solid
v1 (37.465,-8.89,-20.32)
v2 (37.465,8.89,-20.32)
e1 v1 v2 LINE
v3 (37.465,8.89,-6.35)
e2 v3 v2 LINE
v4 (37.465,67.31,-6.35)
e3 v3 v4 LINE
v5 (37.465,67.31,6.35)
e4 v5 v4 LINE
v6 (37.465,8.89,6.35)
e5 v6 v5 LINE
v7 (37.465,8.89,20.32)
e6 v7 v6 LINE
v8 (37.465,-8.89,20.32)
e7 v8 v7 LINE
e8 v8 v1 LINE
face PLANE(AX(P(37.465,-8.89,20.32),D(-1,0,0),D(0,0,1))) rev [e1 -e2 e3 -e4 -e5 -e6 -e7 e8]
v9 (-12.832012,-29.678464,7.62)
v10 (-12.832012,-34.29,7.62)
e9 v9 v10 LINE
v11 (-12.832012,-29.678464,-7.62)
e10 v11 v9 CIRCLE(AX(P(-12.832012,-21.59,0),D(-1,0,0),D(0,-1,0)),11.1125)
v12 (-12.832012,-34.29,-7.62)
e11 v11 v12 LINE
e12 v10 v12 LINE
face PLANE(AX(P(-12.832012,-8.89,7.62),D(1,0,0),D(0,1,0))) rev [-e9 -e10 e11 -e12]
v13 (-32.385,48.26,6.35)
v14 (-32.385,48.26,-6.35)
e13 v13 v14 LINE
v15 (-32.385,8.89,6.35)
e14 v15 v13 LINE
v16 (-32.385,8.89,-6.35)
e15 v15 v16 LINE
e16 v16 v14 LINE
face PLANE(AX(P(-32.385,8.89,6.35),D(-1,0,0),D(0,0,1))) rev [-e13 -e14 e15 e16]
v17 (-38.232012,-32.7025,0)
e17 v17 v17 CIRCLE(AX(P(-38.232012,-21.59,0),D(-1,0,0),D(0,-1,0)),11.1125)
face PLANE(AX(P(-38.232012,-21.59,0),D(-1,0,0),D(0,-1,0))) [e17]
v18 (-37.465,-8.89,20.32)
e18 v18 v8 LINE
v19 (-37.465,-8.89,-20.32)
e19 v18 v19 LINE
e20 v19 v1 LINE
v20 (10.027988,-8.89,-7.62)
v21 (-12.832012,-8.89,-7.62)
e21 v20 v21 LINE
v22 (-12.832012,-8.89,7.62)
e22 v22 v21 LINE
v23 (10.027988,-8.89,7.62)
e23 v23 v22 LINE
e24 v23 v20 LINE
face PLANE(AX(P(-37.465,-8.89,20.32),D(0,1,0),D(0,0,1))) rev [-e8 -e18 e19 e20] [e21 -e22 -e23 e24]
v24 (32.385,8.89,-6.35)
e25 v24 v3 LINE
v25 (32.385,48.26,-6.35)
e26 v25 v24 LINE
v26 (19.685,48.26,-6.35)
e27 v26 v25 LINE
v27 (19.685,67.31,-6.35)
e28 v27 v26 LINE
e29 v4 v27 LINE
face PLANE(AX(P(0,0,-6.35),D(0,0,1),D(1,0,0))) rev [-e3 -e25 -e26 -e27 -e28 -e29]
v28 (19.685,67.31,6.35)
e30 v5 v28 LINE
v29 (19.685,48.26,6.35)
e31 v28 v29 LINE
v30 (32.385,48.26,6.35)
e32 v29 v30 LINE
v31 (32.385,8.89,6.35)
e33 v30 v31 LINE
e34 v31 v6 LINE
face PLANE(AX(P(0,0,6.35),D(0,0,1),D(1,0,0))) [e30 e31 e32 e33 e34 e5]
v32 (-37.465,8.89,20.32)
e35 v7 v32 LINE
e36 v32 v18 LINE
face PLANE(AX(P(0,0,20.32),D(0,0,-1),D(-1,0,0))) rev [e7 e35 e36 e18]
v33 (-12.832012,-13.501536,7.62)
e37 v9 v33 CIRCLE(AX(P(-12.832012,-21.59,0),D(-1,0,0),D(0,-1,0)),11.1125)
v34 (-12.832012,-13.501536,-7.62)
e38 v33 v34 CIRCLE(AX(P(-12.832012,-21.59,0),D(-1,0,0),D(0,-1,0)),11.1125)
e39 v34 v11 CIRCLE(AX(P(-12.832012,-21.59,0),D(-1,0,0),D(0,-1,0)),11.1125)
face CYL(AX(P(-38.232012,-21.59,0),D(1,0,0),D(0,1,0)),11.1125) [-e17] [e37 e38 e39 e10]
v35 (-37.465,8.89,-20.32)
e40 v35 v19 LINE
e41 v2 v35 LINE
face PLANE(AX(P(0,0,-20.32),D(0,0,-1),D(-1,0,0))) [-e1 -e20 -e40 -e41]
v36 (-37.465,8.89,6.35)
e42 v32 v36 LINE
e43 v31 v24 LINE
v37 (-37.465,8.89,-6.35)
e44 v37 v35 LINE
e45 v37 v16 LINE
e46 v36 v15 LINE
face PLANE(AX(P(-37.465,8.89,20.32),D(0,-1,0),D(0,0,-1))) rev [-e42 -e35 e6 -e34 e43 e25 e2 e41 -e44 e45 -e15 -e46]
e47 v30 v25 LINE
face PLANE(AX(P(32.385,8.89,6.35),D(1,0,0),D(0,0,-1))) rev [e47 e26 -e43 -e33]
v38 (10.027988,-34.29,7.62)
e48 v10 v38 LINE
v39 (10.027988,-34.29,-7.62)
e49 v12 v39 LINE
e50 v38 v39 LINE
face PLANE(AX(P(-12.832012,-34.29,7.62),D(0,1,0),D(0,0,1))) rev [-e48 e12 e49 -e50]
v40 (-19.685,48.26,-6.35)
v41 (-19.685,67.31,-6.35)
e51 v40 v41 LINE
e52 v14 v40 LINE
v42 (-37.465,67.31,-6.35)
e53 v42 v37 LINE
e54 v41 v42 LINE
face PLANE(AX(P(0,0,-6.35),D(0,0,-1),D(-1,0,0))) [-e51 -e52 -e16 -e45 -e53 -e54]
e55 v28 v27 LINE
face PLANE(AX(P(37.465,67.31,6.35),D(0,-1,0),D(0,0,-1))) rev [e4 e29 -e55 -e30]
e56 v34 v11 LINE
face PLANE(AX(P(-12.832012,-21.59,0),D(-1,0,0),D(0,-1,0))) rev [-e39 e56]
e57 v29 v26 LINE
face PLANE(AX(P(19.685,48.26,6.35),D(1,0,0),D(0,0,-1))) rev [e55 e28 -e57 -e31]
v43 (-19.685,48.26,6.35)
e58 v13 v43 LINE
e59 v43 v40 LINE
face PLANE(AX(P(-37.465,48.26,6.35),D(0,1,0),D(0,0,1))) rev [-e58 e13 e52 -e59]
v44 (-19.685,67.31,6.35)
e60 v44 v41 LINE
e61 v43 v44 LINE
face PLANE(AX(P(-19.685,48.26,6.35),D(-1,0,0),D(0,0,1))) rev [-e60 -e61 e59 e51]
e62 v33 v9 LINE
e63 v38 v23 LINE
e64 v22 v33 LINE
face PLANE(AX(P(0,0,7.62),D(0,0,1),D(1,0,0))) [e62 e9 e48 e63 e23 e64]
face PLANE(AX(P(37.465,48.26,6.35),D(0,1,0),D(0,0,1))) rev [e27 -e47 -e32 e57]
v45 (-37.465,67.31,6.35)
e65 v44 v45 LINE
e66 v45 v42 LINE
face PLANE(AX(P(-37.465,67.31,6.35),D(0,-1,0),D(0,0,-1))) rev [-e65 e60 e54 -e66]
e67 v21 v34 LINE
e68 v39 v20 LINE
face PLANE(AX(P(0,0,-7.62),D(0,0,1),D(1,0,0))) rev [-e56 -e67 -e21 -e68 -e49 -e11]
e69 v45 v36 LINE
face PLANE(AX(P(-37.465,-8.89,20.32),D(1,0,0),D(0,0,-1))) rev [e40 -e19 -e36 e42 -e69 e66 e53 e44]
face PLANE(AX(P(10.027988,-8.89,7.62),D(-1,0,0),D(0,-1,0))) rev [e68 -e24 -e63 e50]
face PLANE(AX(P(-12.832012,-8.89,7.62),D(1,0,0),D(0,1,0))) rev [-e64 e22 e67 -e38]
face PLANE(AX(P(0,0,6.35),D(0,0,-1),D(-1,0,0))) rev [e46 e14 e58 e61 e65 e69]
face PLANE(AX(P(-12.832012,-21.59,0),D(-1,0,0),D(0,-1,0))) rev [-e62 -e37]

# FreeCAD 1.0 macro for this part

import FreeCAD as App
import Part
import Sketcher
from FreeCAD import Vector
Q = App.Units.Quantity


def add_polygon(sketch, points):
    """Adds a closed chain of lines whose ends are joined by coincident constraints."""
    first, n = sketch.GeometryCount, len(points)
    for a, b in zip(points, points[1:] + points[:1]):
        sketch.addGeometry(Part.LineSegment(App.Vector(*a, 0), App.Vector(*b, 0)), False)
    for i in range(n):
        sketch.addConstraint(Sketcher.Constraint("Coincident", first + i, 2, first + (i + 1) % n, 1))

doc = App.newDocument("Part")
body = doc.addObject("PartDesign::Body", "Body")

# Sketch on XY plane
sketch1 = body.newObject("Sketcher::SketchObject", "Sketch")
sketch1.AttachmentSupport = (doc.getObject("XY_Plane"), [""])
sketch1.MapMode = "FlatFace"
add_polygon(sketch1, [(-37, 9), (-37, -9), (37, -9), (37, 9)])  # lines 0-3
sketch1.addConstraint([
    Sketcher.Constraint("Vertical", 0),
    Sketcher.Constraint("Horizontal", 1),
    Sketcher.Constraint("Vertical", 2),
    Sketcher.Constraint("Horizontal", 3),
    Sketcher.Constraint("Symmetric", 0, 2, 2, 2, -1, 1),
    Sketcher.Constraint("DistanceY", 0, 2, 0, 1, Q("0.7 in")),
    Sketcher.Constraint("DistanceX", 1, 1, 1, 2, Q("2.95 in")),
])
pad1 = body.newObject("PartDesign::Pad", "Pad")
pad1.Profile = sketch1
pad1.Length = Q("1.6 in")
pad1.Midplane = True

# Sketch on XY plane
sketch2 = body.newObject("Sketcher::SketchObject", "Sketch001")
sketch2.AttachmentSupport = (doc.getObject("XY_Plane"), [""])
sketch2.MapMode = "FlatFace"
add_polygon(sketch2, [(-37, 48), (-37, 9), (-32, 9), (-32, 48)])  # lines 0-3
add_polygon(sketch2, [(32, 48), (32, 9), (37, 9), (37, 48)])  # lines 4-7
sketch2.addConstraint([
    Sketcher.Constraint("Vertical", 0),
    Sketcher.Constraint("Horizontal", 1),
    Sketcher.Constraint("Vertical", 2),
    Sketcher.Constraint("Horizontal", 3),
    Sketcher.Constraint("Vertical", 4),
    Sketcher.Constraint("Horizontal", 5),
    Sketcher.Constraint("Vertical", 6),
    Sketcher.Constraint("Horizontal", 7),
    Sketcher.Constraint("Symmetric", 1, 2, 4, 2, -2),
    Sketcher.Constraint("Symmetric", 3, 2, 6, 2, -2),
    Sketcher.Constraint("DistanceX", 1, 1, 1, 2, Q("0.2 in")),
    Sketcher.Constraint("DistanceY", 0, 2, 0, 1, Q("1.55 in")),
    Sketcher.Constraint("DistanceY", -1, 1, 2, 2, Q("1.9 in")),
    Sketcher.Constraint("DistanceX", 1, 2, 4, 2, Q("2.55 in")),
])
pad2 = body.newObject("PartDesign::Pad", "Pad001")
pad2.Profile = sketch2
pad2.Length = Q("0.5 in")
pad2.Midplane = True

# Sketch on XY plane
sketch3 = body.newObject("Sketcher::SketchObject", "Sketch002")
sketch3.AttachmentSupport = (doc.getObject("XY_Plane"), [""])
sketch3.MapMode = "FlatFace"
add_polygon(sketch3, [(20, 67), (20, 48), (37, 48), (37, 67)])  # lines 0-3
add_polygon(sketch3, [(-37, 67), (-37, 48), (-20, 48), (-20, 67)])  # lines 4-7
sketch3.addConstraint([
    Sketcher.Constraint("Vertical", 0),
    Sketcher.Constraint("Horizontal", 1),
    Sketcher.Constraint("Vertical", 2),
    Sketcher.Constraint("Horizontal", 3),
    Sketcher.Constraint("Vertical", 4),
    Sketcher.Constraint("Horizontal", 5),
    Sketcher.Constraint("Vertical", 6),
    Sketcher.Constraint("Horizontal", 7),
    Sketcher.Constraint("Symmetric", 1, 2, 4, 2, -2),
    Sketcher.Constraint("Symmetric", 3, 2, 6, 2, -2),
    Sketcher.Constraint("DistanceX", 1, 1, 1, 2, Q("0.7 in")),
    Sketcher.Constraint("DistanceY", 0, 2, 0, 1, Q("0.75 in")),
    Sketcher.Constraint("DistanceY", -1, 1, 0, 2, Q("1.9 in")),
    Sketcher.Constraint("DistanceX", 4, 2, 0, 2, Q("2.25 in")),
])
pad3 = body.newObject("PartDesign::Pad", "Pad002")
pad3.Profile = sketch3
pad3.Length = Q("0.5 in")
pad3.Midplane = True

# Sketch on XY plane
sketch4 = body.newObject("Sketcher::SketchObject", "Sketch003")
sketch4.AttachmentSupport = (doc.getObject("XY_Plane"), [""])
sketch4.MapMode = "FlatFace"
add_polygon(sketch4, [(-13, -9), (-13, -34), (10, -34), (10, -9)])  # lines 0-3
sketch4.addConstraint([
    Sketcher.Constraint("Vertical", 0),
    Sketcher.Constraint("Horizontal", 1),
    Sketcher.Constraint("Vertical", 2),
    Sketcher.Constraint("Horizontal", 3),
    Sketcher.Constraint("DistanceY", 0, 2, 0, 1, Q("1 in")),
    Sketcher.Constraint("DistanceX", 1, 1, 1, 2, Q("0.9 in")),
    Sketcher.Constraint("DistanceY", 0, 2, -1, 1, Q("1.35 in")),
    Sketcher.Constraint("DistanceX", 0, 2, -1, 1, 12.832012),
])
pad4 = body.newObject("PartDesign::Pad", "Pad003")
pad4.Profile = sketch4
pad4.Length = Q("0.6 in")
pad4.Midplane = True

# Sketch on YZ plane
sketch5 = body.newObject("Sketcher::SketchObject", "Sketch004")
sketch5.AttachmentSupport = (doc.getObject("YZ_Plane"), [""])
sketch5.MapMode = "FlatFace"
sketch5.AttachmentOffset = App.Placement(Vector(0, 0, -12.832012), App.Rotation())
sketch5.addGeometry(Part.Circle(Vector(-22, 0, 0), Vector(0, 0, 1), 11), False)
sketch5.addConstraint([
    Sketcher.Constraint("PointOnObject", 0, 3, -1),
    Sketcher.Constraint("Diameter", 0, Q("0.875 in")),
    Sketcher.Constraint("DistanceX", 0, 3, -1, 1, Q("0.85 in")),
])
pad5 = body.newObject("PartDesign::Pad", "Pad004")
pad5.Profile = sketch5
pad5.Length = Q("1 in")
pad5.Reversed = True

doc.recompute()
